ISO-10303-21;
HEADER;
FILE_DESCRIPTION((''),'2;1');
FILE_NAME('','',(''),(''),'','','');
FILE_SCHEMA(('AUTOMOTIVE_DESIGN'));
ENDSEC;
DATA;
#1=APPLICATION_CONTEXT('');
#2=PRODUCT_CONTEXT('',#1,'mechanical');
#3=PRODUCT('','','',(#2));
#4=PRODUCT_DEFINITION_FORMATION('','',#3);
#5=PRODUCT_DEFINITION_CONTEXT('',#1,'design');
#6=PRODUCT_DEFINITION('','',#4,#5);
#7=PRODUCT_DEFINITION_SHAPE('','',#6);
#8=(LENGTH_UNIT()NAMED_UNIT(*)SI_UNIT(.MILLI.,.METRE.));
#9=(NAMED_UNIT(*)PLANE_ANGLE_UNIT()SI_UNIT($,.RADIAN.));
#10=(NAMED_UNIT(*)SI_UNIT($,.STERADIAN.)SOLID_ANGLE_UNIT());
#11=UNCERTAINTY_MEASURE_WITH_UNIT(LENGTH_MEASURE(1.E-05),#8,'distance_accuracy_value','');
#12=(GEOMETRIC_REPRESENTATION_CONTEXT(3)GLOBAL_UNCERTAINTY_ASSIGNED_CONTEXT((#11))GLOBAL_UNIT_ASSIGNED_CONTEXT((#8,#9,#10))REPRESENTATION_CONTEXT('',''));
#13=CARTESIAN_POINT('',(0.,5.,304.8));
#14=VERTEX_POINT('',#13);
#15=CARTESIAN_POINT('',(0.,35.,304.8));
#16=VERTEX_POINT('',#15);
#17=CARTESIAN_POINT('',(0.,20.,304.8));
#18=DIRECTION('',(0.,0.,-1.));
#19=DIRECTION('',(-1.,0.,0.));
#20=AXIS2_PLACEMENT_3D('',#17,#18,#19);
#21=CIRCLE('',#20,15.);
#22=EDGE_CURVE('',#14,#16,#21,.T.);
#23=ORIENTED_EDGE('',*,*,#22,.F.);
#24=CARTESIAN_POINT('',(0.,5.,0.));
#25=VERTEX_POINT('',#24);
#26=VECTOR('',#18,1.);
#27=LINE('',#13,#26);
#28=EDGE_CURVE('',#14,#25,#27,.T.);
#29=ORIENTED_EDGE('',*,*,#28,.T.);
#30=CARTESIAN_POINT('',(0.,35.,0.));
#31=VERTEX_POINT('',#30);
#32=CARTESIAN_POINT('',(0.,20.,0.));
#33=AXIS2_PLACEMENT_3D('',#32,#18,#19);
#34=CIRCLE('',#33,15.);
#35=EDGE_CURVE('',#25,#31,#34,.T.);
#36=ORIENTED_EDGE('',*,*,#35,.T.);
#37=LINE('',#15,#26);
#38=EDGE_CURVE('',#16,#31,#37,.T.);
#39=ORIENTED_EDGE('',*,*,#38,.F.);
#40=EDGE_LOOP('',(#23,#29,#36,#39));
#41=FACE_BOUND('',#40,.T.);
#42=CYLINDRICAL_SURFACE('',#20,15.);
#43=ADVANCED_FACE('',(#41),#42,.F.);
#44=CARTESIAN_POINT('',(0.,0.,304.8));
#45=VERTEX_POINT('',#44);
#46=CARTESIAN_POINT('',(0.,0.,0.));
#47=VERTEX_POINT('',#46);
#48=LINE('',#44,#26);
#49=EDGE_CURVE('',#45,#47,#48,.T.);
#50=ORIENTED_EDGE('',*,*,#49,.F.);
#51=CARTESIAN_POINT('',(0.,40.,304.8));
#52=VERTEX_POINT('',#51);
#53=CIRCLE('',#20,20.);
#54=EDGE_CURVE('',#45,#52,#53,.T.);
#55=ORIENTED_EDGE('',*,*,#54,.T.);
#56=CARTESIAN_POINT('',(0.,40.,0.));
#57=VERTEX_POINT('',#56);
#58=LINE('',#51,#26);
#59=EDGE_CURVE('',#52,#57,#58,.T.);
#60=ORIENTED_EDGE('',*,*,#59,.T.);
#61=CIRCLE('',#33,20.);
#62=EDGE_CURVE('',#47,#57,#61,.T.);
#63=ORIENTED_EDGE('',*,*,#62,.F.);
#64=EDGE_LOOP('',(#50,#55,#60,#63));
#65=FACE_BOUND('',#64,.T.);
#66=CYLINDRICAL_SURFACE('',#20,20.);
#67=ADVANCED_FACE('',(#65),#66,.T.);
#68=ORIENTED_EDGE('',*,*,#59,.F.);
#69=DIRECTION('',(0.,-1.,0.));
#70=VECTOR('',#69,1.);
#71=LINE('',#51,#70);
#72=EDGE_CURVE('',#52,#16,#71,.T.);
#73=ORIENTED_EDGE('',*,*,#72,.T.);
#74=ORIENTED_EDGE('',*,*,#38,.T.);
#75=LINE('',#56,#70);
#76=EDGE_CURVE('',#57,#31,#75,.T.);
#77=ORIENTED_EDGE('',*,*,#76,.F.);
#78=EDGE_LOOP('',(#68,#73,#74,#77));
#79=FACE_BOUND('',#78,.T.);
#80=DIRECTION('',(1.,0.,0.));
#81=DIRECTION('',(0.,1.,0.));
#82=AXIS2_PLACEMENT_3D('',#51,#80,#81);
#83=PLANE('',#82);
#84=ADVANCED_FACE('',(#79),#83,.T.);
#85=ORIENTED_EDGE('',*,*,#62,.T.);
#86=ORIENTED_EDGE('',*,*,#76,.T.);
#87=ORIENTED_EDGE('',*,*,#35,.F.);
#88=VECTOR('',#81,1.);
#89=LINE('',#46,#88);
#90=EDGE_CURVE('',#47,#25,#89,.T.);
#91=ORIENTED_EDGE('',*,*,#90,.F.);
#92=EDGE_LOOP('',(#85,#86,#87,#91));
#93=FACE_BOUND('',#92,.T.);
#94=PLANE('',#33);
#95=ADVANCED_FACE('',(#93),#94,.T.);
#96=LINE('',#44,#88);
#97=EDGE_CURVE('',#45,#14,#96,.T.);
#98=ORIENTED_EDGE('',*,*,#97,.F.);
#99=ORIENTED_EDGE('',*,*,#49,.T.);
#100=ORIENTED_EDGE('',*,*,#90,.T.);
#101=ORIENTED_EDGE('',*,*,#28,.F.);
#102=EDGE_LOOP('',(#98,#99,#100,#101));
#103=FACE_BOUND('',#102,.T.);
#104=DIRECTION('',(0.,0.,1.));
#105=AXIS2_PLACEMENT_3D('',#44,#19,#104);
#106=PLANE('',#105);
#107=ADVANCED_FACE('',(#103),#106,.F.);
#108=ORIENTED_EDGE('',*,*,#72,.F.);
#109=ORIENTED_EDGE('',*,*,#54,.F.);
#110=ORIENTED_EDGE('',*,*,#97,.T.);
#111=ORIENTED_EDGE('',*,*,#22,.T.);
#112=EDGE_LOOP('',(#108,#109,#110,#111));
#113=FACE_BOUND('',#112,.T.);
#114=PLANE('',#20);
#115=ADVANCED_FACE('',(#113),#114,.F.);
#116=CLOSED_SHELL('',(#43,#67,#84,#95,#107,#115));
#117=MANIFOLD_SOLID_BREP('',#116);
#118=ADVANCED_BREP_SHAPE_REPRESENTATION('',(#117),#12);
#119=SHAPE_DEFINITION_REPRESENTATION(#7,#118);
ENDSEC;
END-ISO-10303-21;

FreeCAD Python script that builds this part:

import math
import FreeCAD as App
import Part
import Sketcher
from FreeCAD import Vector
Q = App.Units.Quantity

doc = App.newDocument("Part")
body = doc.addObject("PartDesign::Body", "Body")

sketch1 = body.newObject("Sketcher::SketchObject", "Sketch")
sketch1.AttachmentSupport = (doc.getObject("XY_Plane"), [""])
sketch1.MapMode = "FlatFace"
sketch1.addGeometry([
    Part.LineSegment(Vector(0, 0, 0), Vector(0, 5, 0)),
    Part.ArcOfCircle(Part.Circle(Vector(0, 20, 0), Vector(0, 0, 1), 15), math.radians(90), math.radians(270)),
    Part.LineSegment(Vector(0, 35, 0), Vector(0, 40, 0)),
    Part.ArcOfCircle(Part.Circle(Vector(0, 20, 0), Vector(0, 0, 1), 20), math.radians(90), math.radians(270)),
], False)
sketch1.addConstraint([
    Sketcher.Constraint("Coincident", 0, 2, 1, 2),
    Sketcher.Constraint("Coincident", 1, 1, 2, 1),
    Sketcher.Constraint("Coincident", 2, 2, 3, 1),
    Sketcher.Constraint("Coincident", 3, 2, 0, 1),
    Sketcher.Constraint("Vertical", 0),
    Sketcher.Constraint("Vertical", 2),
    Sketcher.Constraint("Coincident", 3, 2, -1, 1),
    Sketcher.Constraint("Coincident", 3, 3, 1, 3),
    Sketcher.Constraint("PointOnObject", 1, 3, -2),
    Sketcher.Constraint("PointOnObject", 1, 1, -2),
    Sketcher.Constraint("Radius", 1, Q("15 mm")),
    Sketcher.Constraint("Radius", 3, Q("20 mm")),
])
pad1 = body.newObject("PartDesign::Pad", "Pad")
pad1.Profile = sketch1
pad1.Length = 304.8

doc.recompute()
